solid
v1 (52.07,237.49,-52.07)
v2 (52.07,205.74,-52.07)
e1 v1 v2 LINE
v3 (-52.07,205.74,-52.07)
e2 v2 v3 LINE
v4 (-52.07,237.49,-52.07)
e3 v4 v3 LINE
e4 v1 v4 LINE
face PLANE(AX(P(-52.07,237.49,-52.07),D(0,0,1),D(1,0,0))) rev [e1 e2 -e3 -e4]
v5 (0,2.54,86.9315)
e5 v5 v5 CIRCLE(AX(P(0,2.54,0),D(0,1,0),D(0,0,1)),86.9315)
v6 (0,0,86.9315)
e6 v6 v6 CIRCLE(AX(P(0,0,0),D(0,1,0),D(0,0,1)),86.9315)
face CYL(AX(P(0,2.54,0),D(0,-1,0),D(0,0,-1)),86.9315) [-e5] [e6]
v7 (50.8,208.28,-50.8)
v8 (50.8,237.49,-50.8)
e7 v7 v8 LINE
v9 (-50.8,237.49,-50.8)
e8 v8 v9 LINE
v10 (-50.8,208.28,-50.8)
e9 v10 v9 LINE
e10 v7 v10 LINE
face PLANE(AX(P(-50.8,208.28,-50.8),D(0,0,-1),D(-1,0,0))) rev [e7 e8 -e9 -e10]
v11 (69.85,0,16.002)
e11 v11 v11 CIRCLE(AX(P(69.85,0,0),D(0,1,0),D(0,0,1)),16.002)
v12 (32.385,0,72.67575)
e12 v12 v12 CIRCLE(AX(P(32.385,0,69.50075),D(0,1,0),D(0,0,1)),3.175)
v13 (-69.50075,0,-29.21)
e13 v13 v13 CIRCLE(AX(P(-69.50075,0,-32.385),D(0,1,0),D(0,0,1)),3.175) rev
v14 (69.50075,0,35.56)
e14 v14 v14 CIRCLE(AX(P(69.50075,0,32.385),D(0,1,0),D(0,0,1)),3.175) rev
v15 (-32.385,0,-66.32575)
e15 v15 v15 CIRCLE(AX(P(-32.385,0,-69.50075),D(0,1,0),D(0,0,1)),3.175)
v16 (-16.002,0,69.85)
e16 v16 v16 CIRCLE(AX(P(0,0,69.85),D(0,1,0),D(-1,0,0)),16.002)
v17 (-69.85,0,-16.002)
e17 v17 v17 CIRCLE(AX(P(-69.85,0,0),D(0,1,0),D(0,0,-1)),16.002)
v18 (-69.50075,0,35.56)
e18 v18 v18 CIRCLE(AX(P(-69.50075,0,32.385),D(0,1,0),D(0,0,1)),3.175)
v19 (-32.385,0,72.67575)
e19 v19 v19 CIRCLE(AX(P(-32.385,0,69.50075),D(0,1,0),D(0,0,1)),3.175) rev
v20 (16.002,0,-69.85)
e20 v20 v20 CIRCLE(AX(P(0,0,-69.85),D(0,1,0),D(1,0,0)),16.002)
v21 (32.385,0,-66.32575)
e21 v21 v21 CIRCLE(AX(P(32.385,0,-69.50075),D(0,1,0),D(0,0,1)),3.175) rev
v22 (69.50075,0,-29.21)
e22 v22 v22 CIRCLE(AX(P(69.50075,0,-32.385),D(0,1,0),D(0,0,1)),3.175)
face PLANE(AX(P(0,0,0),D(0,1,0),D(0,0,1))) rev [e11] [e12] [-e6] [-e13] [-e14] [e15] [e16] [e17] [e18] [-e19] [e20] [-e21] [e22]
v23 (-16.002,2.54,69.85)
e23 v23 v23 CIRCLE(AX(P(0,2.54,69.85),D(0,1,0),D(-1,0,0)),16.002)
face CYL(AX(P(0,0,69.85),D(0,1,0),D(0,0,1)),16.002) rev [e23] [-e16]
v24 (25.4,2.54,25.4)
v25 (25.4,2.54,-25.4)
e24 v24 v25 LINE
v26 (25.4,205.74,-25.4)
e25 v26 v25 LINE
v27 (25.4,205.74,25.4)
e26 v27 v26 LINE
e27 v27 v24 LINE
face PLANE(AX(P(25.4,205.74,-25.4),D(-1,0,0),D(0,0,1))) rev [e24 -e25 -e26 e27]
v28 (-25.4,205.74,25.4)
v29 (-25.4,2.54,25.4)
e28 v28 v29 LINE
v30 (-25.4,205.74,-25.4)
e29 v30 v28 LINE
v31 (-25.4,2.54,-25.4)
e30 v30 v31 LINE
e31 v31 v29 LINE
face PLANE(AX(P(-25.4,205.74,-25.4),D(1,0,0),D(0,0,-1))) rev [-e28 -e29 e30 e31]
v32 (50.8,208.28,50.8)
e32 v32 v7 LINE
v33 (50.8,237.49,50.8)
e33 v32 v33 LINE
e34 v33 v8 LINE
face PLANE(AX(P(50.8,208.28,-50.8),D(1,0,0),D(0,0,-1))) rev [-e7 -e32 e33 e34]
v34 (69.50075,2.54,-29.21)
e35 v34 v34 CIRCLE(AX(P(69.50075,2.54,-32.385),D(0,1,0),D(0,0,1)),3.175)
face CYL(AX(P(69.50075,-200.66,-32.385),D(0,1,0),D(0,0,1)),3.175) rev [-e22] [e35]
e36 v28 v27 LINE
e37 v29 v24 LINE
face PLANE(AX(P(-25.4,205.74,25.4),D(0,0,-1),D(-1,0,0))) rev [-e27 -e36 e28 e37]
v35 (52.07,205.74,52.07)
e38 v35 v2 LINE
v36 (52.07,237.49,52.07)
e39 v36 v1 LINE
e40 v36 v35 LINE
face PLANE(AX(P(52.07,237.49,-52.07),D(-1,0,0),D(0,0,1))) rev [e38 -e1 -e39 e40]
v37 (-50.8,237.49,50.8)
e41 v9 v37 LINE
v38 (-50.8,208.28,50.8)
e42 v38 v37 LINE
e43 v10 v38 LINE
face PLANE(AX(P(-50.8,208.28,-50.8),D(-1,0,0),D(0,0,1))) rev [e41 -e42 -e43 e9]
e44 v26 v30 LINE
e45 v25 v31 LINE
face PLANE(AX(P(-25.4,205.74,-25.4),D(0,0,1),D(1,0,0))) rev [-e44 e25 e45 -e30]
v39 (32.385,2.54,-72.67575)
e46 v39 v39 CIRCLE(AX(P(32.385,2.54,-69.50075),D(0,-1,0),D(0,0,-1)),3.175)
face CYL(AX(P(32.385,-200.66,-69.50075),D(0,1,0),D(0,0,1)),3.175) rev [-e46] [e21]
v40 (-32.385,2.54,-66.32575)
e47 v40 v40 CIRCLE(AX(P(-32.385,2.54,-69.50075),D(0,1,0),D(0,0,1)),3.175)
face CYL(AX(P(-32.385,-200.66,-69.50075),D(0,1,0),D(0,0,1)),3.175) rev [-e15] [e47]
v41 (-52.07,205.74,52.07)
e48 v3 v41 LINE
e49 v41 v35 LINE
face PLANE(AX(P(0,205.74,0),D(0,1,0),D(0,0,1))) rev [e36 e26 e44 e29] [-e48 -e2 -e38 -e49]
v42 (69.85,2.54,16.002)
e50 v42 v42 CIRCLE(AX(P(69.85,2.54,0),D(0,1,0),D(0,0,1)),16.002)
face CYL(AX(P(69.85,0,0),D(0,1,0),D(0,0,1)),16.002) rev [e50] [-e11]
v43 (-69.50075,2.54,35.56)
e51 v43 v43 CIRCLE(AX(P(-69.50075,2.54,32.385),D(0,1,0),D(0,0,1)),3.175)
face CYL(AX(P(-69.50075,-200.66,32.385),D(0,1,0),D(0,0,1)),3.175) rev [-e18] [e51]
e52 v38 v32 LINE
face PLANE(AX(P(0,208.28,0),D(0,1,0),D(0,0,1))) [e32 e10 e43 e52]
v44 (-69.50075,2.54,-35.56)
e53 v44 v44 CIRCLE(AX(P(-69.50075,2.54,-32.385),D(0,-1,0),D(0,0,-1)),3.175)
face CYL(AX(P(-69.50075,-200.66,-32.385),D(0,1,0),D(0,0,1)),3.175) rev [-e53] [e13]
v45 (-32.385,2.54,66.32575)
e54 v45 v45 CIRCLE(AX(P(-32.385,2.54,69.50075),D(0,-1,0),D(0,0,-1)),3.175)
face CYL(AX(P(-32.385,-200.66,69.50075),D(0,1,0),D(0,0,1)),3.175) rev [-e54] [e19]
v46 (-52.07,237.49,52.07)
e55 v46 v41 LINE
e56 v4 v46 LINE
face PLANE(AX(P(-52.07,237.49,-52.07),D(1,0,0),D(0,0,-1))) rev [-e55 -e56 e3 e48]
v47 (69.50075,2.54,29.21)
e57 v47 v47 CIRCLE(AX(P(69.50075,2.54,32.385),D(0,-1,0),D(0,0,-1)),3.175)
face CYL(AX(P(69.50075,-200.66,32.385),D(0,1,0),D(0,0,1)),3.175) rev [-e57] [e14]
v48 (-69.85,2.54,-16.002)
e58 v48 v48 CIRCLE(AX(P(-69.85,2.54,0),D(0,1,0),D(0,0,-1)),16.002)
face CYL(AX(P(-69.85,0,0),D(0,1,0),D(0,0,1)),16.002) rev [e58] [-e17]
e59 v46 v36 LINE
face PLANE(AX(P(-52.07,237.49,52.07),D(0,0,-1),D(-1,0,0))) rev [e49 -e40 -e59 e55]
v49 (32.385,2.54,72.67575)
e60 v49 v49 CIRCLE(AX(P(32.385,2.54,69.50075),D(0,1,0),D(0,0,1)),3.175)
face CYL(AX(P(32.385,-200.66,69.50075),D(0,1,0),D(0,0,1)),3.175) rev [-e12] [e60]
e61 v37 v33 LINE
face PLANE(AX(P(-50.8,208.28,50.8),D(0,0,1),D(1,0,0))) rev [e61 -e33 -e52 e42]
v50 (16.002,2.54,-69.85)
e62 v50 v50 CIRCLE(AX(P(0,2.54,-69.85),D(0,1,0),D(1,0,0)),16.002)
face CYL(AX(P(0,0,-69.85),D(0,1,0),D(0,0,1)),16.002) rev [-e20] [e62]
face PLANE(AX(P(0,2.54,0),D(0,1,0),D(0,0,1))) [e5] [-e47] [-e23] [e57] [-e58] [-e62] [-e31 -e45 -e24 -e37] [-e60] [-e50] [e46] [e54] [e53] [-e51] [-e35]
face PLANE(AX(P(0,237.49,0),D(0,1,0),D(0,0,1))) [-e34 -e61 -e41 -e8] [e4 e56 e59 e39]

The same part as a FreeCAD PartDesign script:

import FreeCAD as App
import Part
import Sketcher
Q = App.Units.Quantity

doc = App.newDocument("Part")
params = doc.addObject("Spreadsheet::Sheet", "Params")
for row, (alias, value) in enumerate([
    ("sketch1_diameter", "6.845 in"),
    ("pad1_length", "0.1 in"),
    ("sketch2_width", "2 in"),
    ("pad2_length", "8 in"),
    ("sketch3_diameter", "0.25 in"),
    ("pocket1_length", "8 in"),
    ("sketch4_width", "4.1 in"),
    ("pad3_length", "1.25 in"),
    ("sketch5_width", "4 in"),
    ("pocket2_length", "1.15 in"),
    ("sketch6_diameter", "1.26 in"),
], start=1):
    params.set(f"A{row}", alias)
    params.set(f"B{row}", "=" + value)
    params.setAlias(f"B{row}", alias)

body = doc.addObject("PartDesign::Body", "Body")

# Sketch on XZ plane
sketch1 = body.newObject("Sketcher::SketchObject", "Sketch")
sketch1.AttachmentSupport = (doc.getObject("XZ_Plane"), [""])
sketch1.MapMode = "FlatFace"
sketch1.addGeometry(Part.Circle(App.Vector(0, 0, 0), App.Vector(0, 0, 1), 86.9315), False)
sketch1.addConstraint([
    Sketcher.Constraint("Coincident", 0, 3, -1, 1),
    Sketcher.Constraint("Diameter", 0, Q("6.845 in")),
])
sketch1.setExpression("Constraints[1]", "Params.sketch1_diameter")
pad1 = body.newObject("PartDesign::Pad", "Pad")
pad1.Profile = sketch1
pad1.setExpression("Length", "Params.pad1_length")
pad1.Reversed = True

# Sketch on XZ plane
sketch2 = body.newObject("Sketcher::SketchObject", "Sketch001")
sketch2.AttachmentSupport = (doc.getObject("XZ_Plane"), [""])
sketch2.MapMode = "FlatFace"
sketch2.AttachmentOffset = App.Placement(App.Vector(0, 0, -0.1 * 25.4), App.Rotation())
sketch2.addGeometry([
    Part.LineSegment(App.Vector(-25.4, -25.4, 0), App.Vector(-25.4, 25.4, 0)),
    Part.LineSegment(App.Vector(-25.4, 25.4, 0), App.Vector(25.4, 25.4, 0)),
    Part.LineSegment(App.Vector(25.4, 25.4, 0), App.Vector(25.4, -25.4, 0)),
    Part.LineSegment(App.Vector(25.4, -25.4, 0), App.Vector(-25.4, -25.4, 0)),
], False)
sketch2.addConstraint([
    Sketcher.Constraint("Coincident", 0, 2, 1, 1),
    Sketcher.Constraint("Coincident", 1, 2, 2, 1),
    Sketcher.Constraint("Coincident", 2, 2, 3, 1),
    Sketcher.Constraint("Coincident", 3, 2, 0, 1),
    Sketcher.Constraint("Vertical", 0),
    Sketcher.Constraint("Horizontal", 1),
    Sketcher.Constraint("Vertical", 2),
    Sketcher.Constraint("Horizontal", 3),
    Sketcher.Constraint("Symmetric", 0, 2, 2, 2, -1, 1),
    Sketcher.Constraint("Equal", 3, 0),
    Sketcher.Constraint("DistanceX", 1, 1, 1, 2, Q("2 in")),
])
sketch2.setExpression("Constraints[10]", "Params.sketch2_width")
pad2 = body.newObject("PartDesign::Pad", "Pad001")
pad2.Profile = sketch2
pad2.setExpression("Length", "Params.pad2_length")
pad2.Reversed = True

# Sketch on XZ plane
sketch3 = body.newObject("Sketcher::SketchObject", "Sketch002")
sketch3.AttachmentSupport = (doc.getObject("XZ_Plane"), [""])
sketch3.MapMode = "FlatFace"
sketch3.AttachmentOffset = App.Placement(App.Vector(0, 0, -0.1 * 25.4), App.Rotation())
sketch3.addGeometry([
    Part.Circle(App.Vector(-32.385, -69.50075, 0), App.Vector(0, 0, 1), 3.175),  # 0
    Part.Circle(App.Vector(32.385, -69.50075, 0), App.Vector(0, 0, 1), 3.175),  # 1
    Part.Circle(App.Vector(69.50075, -32.385, 0), App.Vector(0, 0, 1), 3.175),  # 2
    Part.Circle(App.Vector(69.50075, 32.385, 0), App.Vector(0, 0, 1), 3.175),  # 3
    Part.Circle(App.Vector(32.385, 69.50075, 0), App.Vector(0, 0, 1), 3.175),  # 4
    Part.Circle(App.Vector(-32.385, 69.50075, 0), App.Vector(0, 0, 1), 3.175),  # 5
    Part.Circle(App.Vector(-69.50075, 32.385, 0), App.Vector(0, 0, 1), 3.175),  # 6
    Part.Circle(App.Vector(-69.50075, -32.385, 0), App.Vector(0, 0, 1), 3.175),  # 7
], False)
sketch3.addConstraint([
    Sketcher.Constraint("Equal", 0, 1),
    Sketcher.Constraint("Equal", 1, 2),
    Sketcher.Constraint("Equal", 2, 3),
    Sketcher.Constraint("Equal", 3, 4),
    Sketcher.Constraint("Equal", 4, 5),
    Sketcher.Constraint("Equal", 5, 6),
    Sketcher.Constraint("Equal", 6, 7),
    Sketcher.Constraint("Symmetric", 0, 3, 4, 3, -1, 1),
    Sketcher.Constraint("Symmetric", 1, 3, 5, 3, -1, 1),
    Sketcher.Constraint("Symmetric", 2, 3, 6, 3, -1, 1),
    Sketcher.Constraint("Symmetric", 3, 3, 7, 3, -1, 1),
    Sketcher.Constraint("Symmetric", 0, 3, 1, 3, -2),
    Sketcher.Constraint("Symmetric", 3, 3, 6, 3, -2),
    Sketcher.Constraint("Diameter", 0, Q("0.25 in")),
    Sketcher.Constraint("DistanceX", 0, 3, 1, 3, Q("2.55 in")),
    Sketcher.Constraint("DistanceY", 2, 3, 3, 3, Q("2.55 in")),
    Sketcher.Constraint("DistanceY", 1, 3, 4, 3, Q("5.4725 in")),
    Sketcher.Constraint("DistanceX", 6, 3, 3, 3, Q("5.4725 in")),
])
sketch3.setExpression("Constraints[13]", "Params.sketch3_diameter")
pocket1 = body.newObject("PartDesign::Pocket", "Pocket")
pocket1.Profile = sketch3
pocket1.setExpression("Length", "Params.pocket1_length")
pocket1.Reversed = True

# Sketch on XZ plane
sketch4 = body.newObject("Sketcher::SketchObject", "Sketch003")
sketch4.AttachmentSupport = (doc.getObject("XZ_Plane"), [""])
sketch4.MapMode = "FlatFace"
sketch4.AttachmentOffset = App.Placement(App.Vector(0, 0, -8.1 * 25.4), App.Rotation())
sketch4.addGeometry([
    Part.LineSegment(App.Vector(-52.07, -52.07, 0), App.Vector(-52.07, 52.07, 0)),
    Part.LineSegment(App.Vector(-52.07, 52.07, 0), App.Vector(52.07, 52.07, 0)),
    Part.LineSegment(App.Vector(52.07, 52.07, 0), App.Vector(52.07, -52.07, 0)),
    Part.LineSegment(App.Vector(52.07, -52.07, 0), App.Vector(-52.07, -52.07, 0)),
], False)
sketch4.addConstraint([
    Sketcher.Constraint("Coincident", 0, 2, 1, 1),
    Sketcher.Constraint("Coincident", 1, 2, 2, 1),
    Sketcher.Constraint("Coincident", 2, 2, 3, 1),
    Sketcher.Constraint("Coincident", 3, 2, 0, 1),
    Sketcher.Constraint("Vertical", 0),
    Sketcher.Constraint("Horizontal", 1),
    Sketcher.Constraint("Vertical", 2),
    Sketcher.Constraint("Horizontal", 3),
    Sketcher.Constraint("Symmetric", 0, 2, 2, 2, -1, 1),
    Sketcher.Constraint("Equal", 3, 0),
    Sketcher.Constraint("DistanceX", 1, 1, 1, 2, Q("4.1 in")),
])
sketch4.setExpression("Constraints[10]", "Params.sketch4_width")
pad3 = body.newObject("PartDesign::Pad", "Pad002")
pad3.Profile = sketch4
pad3.setExpression("Length", "Params.pad3_length")
pad3.Reversed = True

# Sketch on XZ plane
sketch5 = body.newObject("Sketcher::SketchObject", "Sketch004")
sketch5.AttachmentSupport = (doc.getObject("XZ_Plane"), [""])
sketch5.MapMode = "FlatFace"
sketch5.AttachmentOffset = App.Placement(App.Vector(0, 0, -9.35 * 25.4), App.Rotation())
sketch5.addGeometry([
    Part.LineSegment(App.Vector(-50.8, -50.8, 0), App.Vector(-50.8, 50.8, 0)),
    Part.LineSegment(App.Vector(-50.8, 50.8, 0), App.Vector(50.8, 50.8, 0)),
    Part.LineSegment(App.Vector(50.8, 50.8, 0), App.Vector(50.8, -50.8, 0)),
    Part.LineSegment(App.Vector(50.8, -50.8, 0), App.Vector(-50.8, -50.8, 0)),
], False)
sketch5.addConstraint([
    Sketcher.Constraint("Coincident", 0, 2, 1, 1),
    Sketcher.Constraint("Coincident", 1, 2, 2, 1),
    Sketcher.Constraint("Coincident", 2, 2, 3, 1),
    Sketcher.Constraint("Coincident", 3, 2, 0, 1),
    Sketcher.Constraint("Vertical", 0),
    Sketcher.Constraint("Horizontal", 1),
    Sketcher.Constraint("Vertical", 2),
    Sketcher.Constraint("Horizontal", 3),
    Sketcher.Constraint("Symmetric", 0, 2, 2, 2, -1, 1),
    Sketcher.Constraint("Equal", 3, 0),
    Sketcher.Constraint("DistanceX", 1, 1, 1, 2, Q("4 in")),
])
sketch5.setExpression("Constraints[10]", "Params.sketch5_width")
pocket2 = body.newObject("PartDesign::Pocket", "Pocket001")
pocket2.Profile = sketch5
pocket2.setExpression("Length", "Params.pocket2_length")
pocket2.Reversed = True

# Sketch on XZ plane
sketch6 = body.newObject("Sketcher::SketchObject", "Sketch005")
sketch6.AttachmentSupport = (doc.getObject("XZ_Plane"), [""])
sketch6.MapMode = "FlatFace"
sketch6.AttachmentOffset = App.Placement(App.Vector(0, 0, -0.1 * 25.4), App.Rotation())
sketch6.addGeometry(Part.Circle(App.Vector(69.85, 0, 0), App.Vector(0, 0, 1), 16.002), False)
sketch6.addConstraint([
    Sketcher.Constraint("PointOnObject", 0, 3, -1),
    Sketcher.Constraint("Diameter", 0, Q("1.26 in")),
    Sketcher.Constraint("DistanceX", -1, 1, 0, 3, Q("2.75 in")),
])
sketch6.setExpression("Constraints[1]", "Params.sketch6_diameter")
pocket3 = body.newObject("PartDesign::Pocket", "Pocket002")
pocket3.Profile = sketch6
pocket3.Type = "ThroughAll"
pocket3.Reversed = True
doc.recompute()

polarpattern = body.newObject("PartDesign::PolarPattern", "PolarPattern")
polarpattern.Originals = [pocket3]
polarpattern.Axis = (doc.getObject("Y_Axis"), [""])
polarpattern.Angle = 360
polarpattern.Occurrences = 4
body.Tip = polarpattern

doc.recompute()
